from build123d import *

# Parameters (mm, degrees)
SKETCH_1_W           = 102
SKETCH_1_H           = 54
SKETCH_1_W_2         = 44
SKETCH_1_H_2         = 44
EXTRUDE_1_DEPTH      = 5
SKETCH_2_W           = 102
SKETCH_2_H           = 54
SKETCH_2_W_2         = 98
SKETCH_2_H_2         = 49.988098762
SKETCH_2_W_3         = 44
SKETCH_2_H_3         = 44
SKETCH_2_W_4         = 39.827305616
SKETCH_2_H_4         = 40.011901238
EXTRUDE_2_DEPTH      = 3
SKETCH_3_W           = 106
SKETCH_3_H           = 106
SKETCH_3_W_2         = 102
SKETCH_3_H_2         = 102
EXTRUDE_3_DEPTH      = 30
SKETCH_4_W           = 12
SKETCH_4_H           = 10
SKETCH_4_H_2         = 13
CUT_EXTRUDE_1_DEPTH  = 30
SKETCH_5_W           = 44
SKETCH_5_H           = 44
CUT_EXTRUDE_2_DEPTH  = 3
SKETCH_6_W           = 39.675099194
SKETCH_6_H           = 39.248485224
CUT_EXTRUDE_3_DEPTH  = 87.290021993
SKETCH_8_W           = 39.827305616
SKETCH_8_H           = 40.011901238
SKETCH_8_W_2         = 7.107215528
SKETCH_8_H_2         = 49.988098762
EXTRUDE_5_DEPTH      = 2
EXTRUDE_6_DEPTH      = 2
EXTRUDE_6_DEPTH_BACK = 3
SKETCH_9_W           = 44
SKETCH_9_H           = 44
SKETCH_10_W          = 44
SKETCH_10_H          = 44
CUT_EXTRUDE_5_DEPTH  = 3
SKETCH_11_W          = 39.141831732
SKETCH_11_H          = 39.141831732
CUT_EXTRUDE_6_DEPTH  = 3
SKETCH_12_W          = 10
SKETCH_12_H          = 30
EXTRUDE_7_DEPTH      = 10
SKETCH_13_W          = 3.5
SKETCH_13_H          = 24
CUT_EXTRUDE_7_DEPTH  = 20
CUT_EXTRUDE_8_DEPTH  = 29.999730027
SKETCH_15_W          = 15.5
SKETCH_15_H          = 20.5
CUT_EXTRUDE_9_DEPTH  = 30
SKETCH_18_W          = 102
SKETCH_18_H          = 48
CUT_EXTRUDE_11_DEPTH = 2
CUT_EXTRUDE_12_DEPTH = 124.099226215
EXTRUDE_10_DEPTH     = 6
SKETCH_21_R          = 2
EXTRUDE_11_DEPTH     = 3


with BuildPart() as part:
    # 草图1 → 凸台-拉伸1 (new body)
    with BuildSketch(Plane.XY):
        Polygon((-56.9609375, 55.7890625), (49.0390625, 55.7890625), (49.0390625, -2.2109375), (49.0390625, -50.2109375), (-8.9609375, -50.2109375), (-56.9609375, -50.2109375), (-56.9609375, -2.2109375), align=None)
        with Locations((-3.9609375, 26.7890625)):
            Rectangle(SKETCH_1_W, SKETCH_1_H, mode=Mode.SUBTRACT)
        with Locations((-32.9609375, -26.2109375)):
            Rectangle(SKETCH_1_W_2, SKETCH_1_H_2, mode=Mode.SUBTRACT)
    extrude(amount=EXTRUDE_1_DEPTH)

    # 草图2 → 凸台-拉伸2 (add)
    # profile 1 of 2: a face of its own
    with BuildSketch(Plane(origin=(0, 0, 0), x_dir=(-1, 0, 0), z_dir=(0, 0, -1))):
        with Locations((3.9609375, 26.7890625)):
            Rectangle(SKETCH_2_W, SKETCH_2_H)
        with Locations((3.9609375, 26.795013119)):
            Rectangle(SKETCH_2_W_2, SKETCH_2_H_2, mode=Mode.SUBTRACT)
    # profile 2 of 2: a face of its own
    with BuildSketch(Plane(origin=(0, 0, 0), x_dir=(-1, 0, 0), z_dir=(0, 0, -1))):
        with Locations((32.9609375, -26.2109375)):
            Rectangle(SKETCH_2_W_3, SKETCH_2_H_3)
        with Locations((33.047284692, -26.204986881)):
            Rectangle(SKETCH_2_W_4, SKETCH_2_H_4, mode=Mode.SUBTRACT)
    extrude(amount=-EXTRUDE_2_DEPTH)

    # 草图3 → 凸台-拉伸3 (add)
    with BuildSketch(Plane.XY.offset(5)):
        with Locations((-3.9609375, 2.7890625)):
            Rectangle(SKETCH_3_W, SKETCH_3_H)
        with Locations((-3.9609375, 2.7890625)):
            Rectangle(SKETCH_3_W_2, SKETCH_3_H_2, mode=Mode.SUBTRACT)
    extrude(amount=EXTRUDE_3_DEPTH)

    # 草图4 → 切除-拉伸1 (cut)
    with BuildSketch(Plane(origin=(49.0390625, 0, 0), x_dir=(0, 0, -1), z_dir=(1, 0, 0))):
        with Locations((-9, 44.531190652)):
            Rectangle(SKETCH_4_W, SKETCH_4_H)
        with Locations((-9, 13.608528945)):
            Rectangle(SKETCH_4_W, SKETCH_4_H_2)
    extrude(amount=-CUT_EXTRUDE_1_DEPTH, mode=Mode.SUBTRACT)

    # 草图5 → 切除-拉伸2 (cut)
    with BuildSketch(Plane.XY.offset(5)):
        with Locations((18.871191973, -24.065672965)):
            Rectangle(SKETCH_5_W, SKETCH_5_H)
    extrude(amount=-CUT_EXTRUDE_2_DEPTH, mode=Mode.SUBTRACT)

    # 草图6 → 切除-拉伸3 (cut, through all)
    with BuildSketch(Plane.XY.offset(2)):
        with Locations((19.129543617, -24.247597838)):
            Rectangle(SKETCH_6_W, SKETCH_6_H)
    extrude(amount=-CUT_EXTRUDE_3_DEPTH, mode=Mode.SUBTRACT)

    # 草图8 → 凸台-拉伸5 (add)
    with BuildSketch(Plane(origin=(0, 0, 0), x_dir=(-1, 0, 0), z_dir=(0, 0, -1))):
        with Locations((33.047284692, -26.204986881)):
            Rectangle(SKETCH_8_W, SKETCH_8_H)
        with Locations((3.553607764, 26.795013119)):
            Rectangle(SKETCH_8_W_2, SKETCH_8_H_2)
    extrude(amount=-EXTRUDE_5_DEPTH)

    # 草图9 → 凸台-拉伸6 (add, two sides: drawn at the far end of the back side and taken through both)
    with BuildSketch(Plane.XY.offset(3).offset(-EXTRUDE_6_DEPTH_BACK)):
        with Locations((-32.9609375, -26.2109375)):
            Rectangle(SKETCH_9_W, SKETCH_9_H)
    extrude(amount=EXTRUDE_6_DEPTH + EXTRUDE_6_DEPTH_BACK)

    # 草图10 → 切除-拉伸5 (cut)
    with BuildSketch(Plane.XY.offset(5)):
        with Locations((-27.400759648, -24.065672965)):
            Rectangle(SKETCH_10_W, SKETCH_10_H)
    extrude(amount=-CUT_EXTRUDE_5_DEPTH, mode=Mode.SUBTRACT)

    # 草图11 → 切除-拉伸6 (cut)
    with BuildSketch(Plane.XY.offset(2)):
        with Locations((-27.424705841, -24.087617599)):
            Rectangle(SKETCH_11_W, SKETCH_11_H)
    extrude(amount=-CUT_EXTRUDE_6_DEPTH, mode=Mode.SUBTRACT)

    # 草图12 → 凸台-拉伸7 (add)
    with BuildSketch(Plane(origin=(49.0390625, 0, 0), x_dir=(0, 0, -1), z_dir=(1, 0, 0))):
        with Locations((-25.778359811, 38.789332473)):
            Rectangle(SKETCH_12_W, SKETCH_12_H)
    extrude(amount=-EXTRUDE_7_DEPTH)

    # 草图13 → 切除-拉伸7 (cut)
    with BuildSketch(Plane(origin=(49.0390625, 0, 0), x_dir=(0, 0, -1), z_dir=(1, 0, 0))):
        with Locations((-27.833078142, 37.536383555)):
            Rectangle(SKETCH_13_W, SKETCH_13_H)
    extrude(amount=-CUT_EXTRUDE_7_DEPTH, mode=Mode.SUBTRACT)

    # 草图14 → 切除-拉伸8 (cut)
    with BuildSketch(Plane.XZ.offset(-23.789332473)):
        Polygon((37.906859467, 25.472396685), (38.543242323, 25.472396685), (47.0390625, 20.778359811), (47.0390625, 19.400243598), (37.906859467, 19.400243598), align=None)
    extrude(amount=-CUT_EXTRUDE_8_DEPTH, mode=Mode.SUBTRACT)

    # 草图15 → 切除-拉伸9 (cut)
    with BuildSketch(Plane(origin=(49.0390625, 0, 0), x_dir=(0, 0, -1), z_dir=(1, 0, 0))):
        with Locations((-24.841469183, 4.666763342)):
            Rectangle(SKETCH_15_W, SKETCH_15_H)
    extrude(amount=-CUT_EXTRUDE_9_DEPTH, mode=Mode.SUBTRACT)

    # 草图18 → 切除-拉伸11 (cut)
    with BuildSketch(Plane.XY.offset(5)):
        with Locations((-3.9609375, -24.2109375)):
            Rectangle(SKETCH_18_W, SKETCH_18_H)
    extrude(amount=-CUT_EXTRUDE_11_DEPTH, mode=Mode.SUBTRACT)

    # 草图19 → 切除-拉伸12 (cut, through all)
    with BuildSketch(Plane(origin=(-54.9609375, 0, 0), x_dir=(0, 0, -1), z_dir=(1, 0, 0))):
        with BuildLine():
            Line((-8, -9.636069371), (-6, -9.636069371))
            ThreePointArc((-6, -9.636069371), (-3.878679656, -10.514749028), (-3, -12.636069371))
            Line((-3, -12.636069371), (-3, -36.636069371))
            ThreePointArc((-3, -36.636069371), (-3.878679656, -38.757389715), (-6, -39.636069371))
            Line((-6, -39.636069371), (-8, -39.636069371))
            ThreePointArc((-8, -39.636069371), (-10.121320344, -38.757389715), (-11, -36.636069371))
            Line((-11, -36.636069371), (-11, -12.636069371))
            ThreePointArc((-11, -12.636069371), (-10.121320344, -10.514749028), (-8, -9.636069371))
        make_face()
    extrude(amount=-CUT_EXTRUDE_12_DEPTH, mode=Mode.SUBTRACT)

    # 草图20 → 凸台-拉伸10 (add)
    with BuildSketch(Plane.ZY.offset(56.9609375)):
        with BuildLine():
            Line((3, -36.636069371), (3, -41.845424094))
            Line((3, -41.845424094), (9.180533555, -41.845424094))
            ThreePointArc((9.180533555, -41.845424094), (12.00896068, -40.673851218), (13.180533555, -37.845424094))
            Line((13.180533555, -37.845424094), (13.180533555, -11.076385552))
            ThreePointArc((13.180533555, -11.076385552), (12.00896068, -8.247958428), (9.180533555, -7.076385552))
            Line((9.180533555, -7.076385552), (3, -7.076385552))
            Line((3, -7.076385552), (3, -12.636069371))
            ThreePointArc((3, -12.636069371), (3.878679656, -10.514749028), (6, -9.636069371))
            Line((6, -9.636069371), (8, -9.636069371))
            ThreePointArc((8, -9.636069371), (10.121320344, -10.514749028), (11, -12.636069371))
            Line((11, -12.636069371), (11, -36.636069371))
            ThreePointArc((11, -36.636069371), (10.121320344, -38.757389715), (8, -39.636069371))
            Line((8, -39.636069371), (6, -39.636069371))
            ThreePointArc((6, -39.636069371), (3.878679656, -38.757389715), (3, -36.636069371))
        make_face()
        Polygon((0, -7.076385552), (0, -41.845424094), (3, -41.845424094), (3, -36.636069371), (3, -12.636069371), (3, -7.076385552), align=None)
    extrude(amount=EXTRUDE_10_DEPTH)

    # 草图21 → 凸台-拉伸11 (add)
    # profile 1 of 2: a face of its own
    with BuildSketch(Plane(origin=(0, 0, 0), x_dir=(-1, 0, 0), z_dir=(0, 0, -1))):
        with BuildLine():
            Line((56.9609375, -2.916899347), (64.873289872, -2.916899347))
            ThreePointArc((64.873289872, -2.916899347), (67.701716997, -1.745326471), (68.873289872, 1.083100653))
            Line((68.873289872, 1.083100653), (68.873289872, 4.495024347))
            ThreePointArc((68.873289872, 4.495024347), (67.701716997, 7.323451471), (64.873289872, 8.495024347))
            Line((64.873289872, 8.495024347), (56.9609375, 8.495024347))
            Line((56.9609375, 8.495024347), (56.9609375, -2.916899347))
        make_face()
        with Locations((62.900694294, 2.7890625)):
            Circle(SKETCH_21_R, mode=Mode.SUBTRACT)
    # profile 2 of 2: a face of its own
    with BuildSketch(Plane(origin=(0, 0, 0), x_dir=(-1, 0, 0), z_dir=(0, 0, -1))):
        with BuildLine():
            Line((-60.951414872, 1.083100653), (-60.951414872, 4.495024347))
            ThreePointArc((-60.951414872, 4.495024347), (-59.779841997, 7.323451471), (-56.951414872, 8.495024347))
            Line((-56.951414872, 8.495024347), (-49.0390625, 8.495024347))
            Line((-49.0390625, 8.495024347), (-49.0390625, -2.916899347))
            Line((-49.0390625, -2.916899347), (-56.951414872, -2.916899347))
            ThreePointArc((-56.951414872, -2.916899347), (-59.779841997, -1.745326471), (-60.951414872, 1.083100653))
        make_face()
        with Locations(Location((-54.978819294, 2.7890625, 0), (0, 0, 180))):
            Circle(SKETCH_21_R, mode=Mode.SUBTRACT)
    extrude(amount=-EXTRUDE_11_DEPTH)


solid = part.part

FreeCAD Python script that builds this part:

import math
import FreeCAD as App
import Part
import Sketcher
from FreeCAD import Vector
Q = App.Units.Quantity

doc = App.newDocument("Part")
body = doc.addObject("PartDesign::Body", "Body")

# Sketch on XY plane
sketch1 = body.newObject("Sketcher::SketchObject", "Sketch")
sketch1.AttachmentSupport = (doc.getObject("XY_Plane"), [""])
sketch1.MapMode = "FlatFace"
sketch1.addGeometry(Part.LineSegment(Vector(49, 56, 0), Vector(-57, 56, 0)), False)
sketch1.addGeometry(Part.LineSegment(Vector(-57, 56, 0), Vector(-57, -50, 0)), False)
sketch1.addGeometry(Part.LineSegment(Vector(-57, -50, 0), Vector(49, -50, 0)), False)
sketch1.addGeometry(Part.LineSegment(Vector(49, -50, 0), Vector(49, 56, 0)), False)
sketch1.addGeometry(Part.LineSegment(Vector(-55, -48, 0), Vector(-55, -4, 0)), False)
sketch1.addGeometry(Part.LineSegment(Vector(-55, -4, 0), Vector(-11, -4, 0)), False)
sketch1.addGeometry(Part.LineSegment(Vector(-11, -4, 0), Vector(-11, -48, 0)), False)
sketch1.addGeometry(Part.LineSegment(Vector(-11, -48, 0), Vector(-55, -48, 0)), False)
sketch1.addGeometry(Part.LineSegment(Vector(-55, 0, 0), Vector(-55, 54, 0)), False)
sketch1.addGeometry(Part.LineSegment(Vector(-55, 54, 0), Vector(47, 54, 0)), False)
sketch1.addGeometry(Part.LineSegment(Vector(47, 54, 0), Vector(47, 0, 0)), False)
sketch1.addGeometry(Part.LineSegment(Vector(47, 0, 0), Vector(-55, 0, 0)), False)
sketch1.addConstraint(Sketcher.Constraint("Coincident", 0, 2, 1, 1))
sketch1.addConstraint(Sketcher.Constraint("Coincident", 1, 2, 2, 1))
sketch1.addConstraint(Sketcher.Constraint("Coincident", 2, 2, 3, 1))
sketch1.addConstraint(Sketcher.Constraint("Coincident", 3, 2, 0, 1))
sketch1.addConstraint(Sketcher.Constraint("Coincident", 4, 2, 5, 1))
sketch1.addConstraint(Sketcher.Constraint("Coincident", 5, 2, 6, 1))
sketch1.addConstraint(Sketcher.Constraint("Coincident", 6, 2, 7, 1))
sketch1.addConstraint(Sketcher.Constraint("Coincident", 7, 2, 4, 1))
sketch1.addConstraint(Sketcher.Constraint("Coincident", 8, 2, 9, 1))
sketch1.addConstraint(Sketcher.Constraint("Coincident", 9, 2, 10, 1))
sketch1.addConstraint(Sketcher.Constraint("Coincident", 10, 2, 11, 1))
sketch1.addConstraint(Sketcher.Constraint("Coincident", 11, 2, 8, 1))
sketch1.addConstraint(Sketcher.Constraint("Horizontal", 0))
sketch1.addConstraint(Sketcher.Constraint("Vertical", 1))
sketch1.addConstraint(Sketcher.Constraint("Horizontal", 2))
sketch1.addConstraint(Sketcher.Constraint("Vertical", 3))
sketch1.addConstraint(Sketcher.Constraint("Vertical", 4))
sketch1.addConstraint(Sketcher.Constraint("Horizontal", 5))
sketch1.addConstraint(Sketcher.Constraint("Vertical", 6))
sketch1.addConstraint(Sketcher.Constraint("Horizontal", 7))
sketch1.addConstraint(Sketcher.Constraint("Vertical", 8))
sketch1.addConstraint(Sketcher.Constraint("Horizontal", 9))
sketch1.addConstraint(Sketcher.Constraint("Vertical", 10))
sketch1.addConstraint(Sketcher.Constraint("Horizontal", 11))
sketch1.addConstraint(Sketcher.Constraint("Vertical", 7, 2, 8, 2))
sketch1.addConstraint(Sketcher.Constraint("Equal", 2, 1))
sketch1.addConstraint(Sketcher.Constraint("Equal", 7, 4))
sketch1.addConstraint(Sketcher.Constraint("DistanceX", 0, 2, 0, 1, Q("106 mm")))
sketch1.addConstraint(Sketcher.Constraint("DistanceX", 5, 1, 5, 2, Q("44 mm")))
sketch1.addConstraint(Sketcher.Constraint("DistanceX", 9, 1, 9, 2, Q("102 mm")))
sketch1.addConstraint(Sketcher.Constraint("DistanceY", 8, 1, 8, 2, Q("54 mm")))
sketch1.addConstraint(Sketcher.Constraint("DistanceX", 1, 2, 4, 2, Q("2 mm")))
sketch1.addConstraint(Sketcher.Constraint("DistanceY", 1, 2, 4, 2, Q("46 mm")))
sketch1.addConstraint(Sketcher.Constraint("DistanceY", 8, 2, 0, 2, Q("2 mm")))
sketch1.addConstraint(Sketcher.Constraint("DistanceX", 0, 2, -1, 1, Q("56.960938 mm")))
sketch1.addConstraint(Sketcher.Constraint("DistanceY", -1, 1, 0, 2, Q("55.789062 mm")))
pad1 = body.newObject("PartDesign::Pad", "Pad")
pad1.Profile = sketch1
pad1.Length = 5

# Sketch on XY plane
sketch2 = body.newObject("Sketcher::SketchObject", "Sketch001")
sketch2.AttachmentSupport = (doc.getObject("XY_Plane"), [""])
sketch2.MapMode = "FlatFace"
sketch2.addGeometry(Part.LineSegment(Vector(47, 54, 0), Vector(47, 0, 0)), False)
sketch2.addGeometry(Part.LineSegment(Vector(47, 0, 0), Vector(-55, 0, 0)), False)
sketch2.addGeometry(Part.LineSegment(Vector(-55, 0, 0), Vector(-55, 54, 0)), False)
sketch2.addGeometry(Part.LineSegment(Vector(-55, 54, 0), Vector(47, 54, 0)), False)
sketch2.addGeometry(Part.LineSegment(Vector(-53, 2, 0), Vector(45, 2, 0)), False)
sketch2.addGeometry(Part.LineSegment(Vector(45, 2, 0), Vector(45, 52, 0)), False)
sketch2.addGeometry(Part.LineSegment(Vector(45, 52, 0), Vector(-53, 52, 0)), False)
sketch2.addGeometry(Part.LineSegment(Vector(-53, 52, 0), Vector(-53, 2, 0)), False)
sketch2.addGeometry(Part.LineSegment(Vector(-11, -4, 0), Vector(-11, -48, 0)), False)
sketch2.addGeometry(Part.LineSegment(Vector(-11, -48, 0), Vector(-55, -48, 0)), False)
sketch2.addGeometry(Part.LineSegment(Vector(-55, -48, 0), Vector(-55, -4, 0)), False)
sketch2.addGeometry(Part.LineSegment(Vector(-55, -4, 0), Vector(-11, -4, 0)), False)
sketch2.addGeometry(Part.LineSegment(Vector(-53, -46, 0), Vector(-13, -46, 0)), False)
sketch2.addGeometry(Part.LineSegment(Vector(-13, -46, 0), Vector(-13, -6, 0)), False)
sketch2.addGeometry(Part.LineSegment(Vector(-13, -6, 0), Vector(-53, -6, 0)), False)
sketch2.addGeometry(Part.LineSegment(Vector(-53, -6, 0), Vector(-53, -46, 0)), False)
sketch2.addConstraint(Sketcher.Constraint("Coincident", 0, 2, 1, 1))
sketch2.addConstraint(Sketcher.Constraint("Coincident", 1, 2, 2, 1))
sketch2.addConstraint(Sketcher.Constraint("Coincident", 2, 2, 3, 1))
sketch2.addConstraint(Sketcher.Constraint("Coincident", 3, 2, 0, 1))
sketch2.addConstraint(Sketcher.Constraint("Coincident", 4, 2, 5, 1))
sketch2.addConstraint(Sketcher.Constraint("Coincident", 5, 2, 6, 1))
sketch2.addConstraint(Sketcher.Constraint("Coincident", 6, 2, 7, 1))
sketch2.addConstraint(Sketcher.Constraint("Coincident", 7, 2, 4, 1))
sketch2.addConstraint(Sketcher.Constraint("Coincident", 8, 2, 9, 1))
sketch2.addConstraint(Sketcher.Constraint("Coincident", 9, 2, 10, 1))
sketch2.addConstraint(Sketcher.Constraint("Coincident", 10, 2, 11, 1))
sketch2.addConstraint(Sketcher.Constraint("Coincident", 11, 2, 8, 1))
sketch2.addConstraint(Sketcher.Constraint("Coincident", 12, 2, 13, 1))
sketch2.addConstraint(Sketcher.Constraint("Coincident", 13, 2, 14, 1))
sketch2.addConstraint(Sketcher.Constraint("Coincident", 14, 2, 15, 1))
sketch2.addConstraint(Sketcher.Constraint("Coincident", 15, 2, 12, 1))
sketch2.addConstraint(Sketcher.Constraint("Vertical", 0))
sketch2.addConstraint(Sketcher.Constraint("Horizontal", 1))
sketch2.addConstraint(Sketcher.Constraint("Vertical", 2))
sketch2.addConstraint(Sketcher.Constraint("Horizontal", 3))
sketch2.addConstraint(Sketcher.Constraint("Horizontal", 4))
sketch2.addConstraint(Sketcher.Constraint("Vertical", 5))
sketch2.addConstraint(Sketcher.Constraint("Horizontal", 6))
sketch2.addConstraint(Sketcher.Constraint("Vertical", 7))
sketch2.addConstraint(Sketcher.Constraint("Vertical", 8))
sketch2.addConstraint(Sketcher.Constraint("Horizontal", 9))
sketch2.addConstraint(Sketcher.Constraint("Vertical", 10))
sketch2.addConstraint(Sketcher.Constraint("Horizontal", 11))
sketch2.addConstraint(Sketcher.Constraint("Horizontal", 12))
sketch2.addConstraint(Sketcher.Constraint("Vertical", 13))
sketch2.addConstraint(Sketcher.Constraint("Horizontal", 14))
sketch2.addConstraint(Sketcher.Constraint("Vertical", 15))
sketch2.addConstraint(Sketcher.Constraint("Vertical", 2, 2, 9, 2))
sketch2.addConstraint(Sketcher.Constraint("Vertical", 7, 2, 14, 2))
sketch2.addConstraint(Sketcher.Constraint("Equal", 11, 8))
sketch2.addConstraint(Sketcher.Constraint("DistanceX", 1, 2, 1, 1, Q("102 mm")))
sketch2.addConstraint(Sketcher.Constraint("DistanceX", 4, 1, 4, 2, Q("98 mm")))
sketch2.addConstraint(Sketcher.Constraint("DistanceX", 9, 2, 9, 1, Q("44 mm")))
sketch2.addConstraint(Sketcher.Constraint("DistanceY", 0, 2, 0, 1, Q("54 mm")))
sketch2.addConstraint(Sketcher.Constraint("DistanceX", 4, 2, 0, 2, Q("2 mm")))
sketch2.addConstraint(Sketcher.Constraint("DistanceY", 5, 2, 3, 2, Q("2 mm")))
sketch2.addConstraint(Sketcher.Constraint("DistanceY", 8, 2, 1, 2, Q("48 mm")))
sketch2.addConstraint(Sketcher.Constraint("DistanceY", 8, 2, 12, 2, Q("2 mm")))
sketch2.addConstraint(Sketcher.Constraint("DistanceY", 13, 2, 7, 2, Q("8 mm")))
sketch2.addConstraint(Sketcher.Constraint("DistanceY", 5, 1, 5, 2, Q("49.988099 mm")))
sketch2.addConstraint(Sketcher.Constraint("DistanceX", 12, 1, 12, 2, Q("39.827306 mm")))
sketch2.addConstraint(Sketcher.Constraint("DistanceX", 12, 2, -1, 1, Q("13.133632 mm")))
sketch2.addConstraint(Sketcher.Constraint("DistanceY", 0, 2, -1, 1, Q("0.210938 mm")))
pad2 = body.newObject("PartDesign::Pad", "Pad001")
pad2.Profile = sketch2
pad2.Length = 3

# Sketch on XY plane
sketch3 = body.newObject("Sketcher::SketchObject", "Sketch002")
sketch3.AttachmentSupport = (doc.getObject("XY_Plane"), [""])
sketch3.MapMode = "FlatFace"
sketch3.AttachmentOffset = App.Placement(Vector(0, 0, 5), App.Rotation())
sketch3.addGeometry(Part.LineSegment(Vector(-57, 56, 0), Vector(-57, -50, 0)), False)
sketch3.addGeometry(Part.LineSegment(Vector(-57, -50, 0), Vector(49, -50, 0)), False)
sketch3.addGeometry(Part.LineSegment(Vector(49, -50, 0), Vector(49, 56, 0)), False)
sketch3.addGeometry(Part.LineSegment(Vector(49, 56, 0), Vector(-57, 56, 0)), False)
sketch3.addGeometry(Part.LineSegment(Vector(47, -48, 0), Vector(-55, -48, 0)), False)
sketch3.addGeometry(Part.LineSegment(Vector(-55, -48, 0), Vector(-55, 54, 0)), False)
sketch3.addGeometry(Part.LineSegment(Vector(-55, 54, 0), Vector(47, 54, 0)), False)
sketch3.addGeometry(Part.LineSegment(Vector(47, 54, 0), Vector(47, -48, 0)), False)
sketch3.addConstraint(Sketcher.Constraint("Coincident", 0, 2, 1, 1))
sketch3.addConstraint(Sketcher.Constraint("Coincident", 1, 2, 2, 1))
sketch3.addConstraint(Sketcher.Constraint("Coincident", 2, 2, 3, 1))
sketch3.addConstraint(Sketcher.Constraint("Coincident", 3, 2, 0, 1))
sketch3.addConstraint(Sketcher.Constraint("Coincident", 4, 2, 5, 1))
sketch3.addConstraint(Sketcher.Constraint("Coincident", 5, 2, 6, 1))
sketch3.addConstraint(Sketcher.Constraint("Coincident", 6, 2, 7, 1))
sketch3.addConstraint(Sketcher.Constraint("Coincident", 7, 2, 4, 1))
sketch3.addConstraint(Sketcher.Constraint("Vertical", 0))
sketch3.addConstraint(Sketcher.Constraint("Horizontal", 1))
sketch3.addConstraint(Sketcher.Constraint("Vertical", 2))
sketch3.addConstraint(Sketcher.Constraint("Horizontal", 3))
sketch3.addConstraint(Sketcher.Constraint("Horizontal", 4))
sketch3.addConstraint(Sketcher.Constraint("Vertical", 5))
sketch3.addConstraint(Sketcher.Constraint("Horizontal", 6))
sketch3.addConstraint(Sketcher.Constraint("Vertical", 7))
sketch3.addConstraint(Sketcher.Constraint("Equal", 3, 0))
sketch3.addConstraint(Sketcher.Constraint("Equal", 6, 5))
sketch3.addConstraint(Sketcher.Constraint("DistanceX", 1, 1, 1, 2, Q("106 mm")))
sketch3.addConstraint(Sketcher.Constraint("DistanceX", 4, 2, 4, 1, Q("102 mm")))
sketch3.addConstraint(Sketcher.Constraint("DistanceX", 0, 2, 4, 2, Q("2 mm")))
sketch3.addConstraint(Sketcher.Constraint("DistanceY", 0, 2, 4, 2, Q("2 mm")))
sketch3.addConstraint(Sketcher.Constraint("DistanceX", 0, 2, -1, 1, Q("56.960938 mm")))
sketch3.addConstraint(Sketcher.Constraint("DistanceY", 0, 2, -1, 1, Q("50.210938 mm")))
pad3 = body.newObject("PartDesign::Pad", "Pad002")
pad3.Profile = sketch3
pad3.Length = 30

# Sketch on YZ plane
sketch4 = body.newObject("Sketcher::SketchObject", "Sketch003")
sketch4.AttachmentSupport = (doc.getObject("YZ_Plane"), [""])
sketch4.MapMode = "FlatFace"
sketch4.AttachmentOffset = App.Placement(Vector(0, 0, 49.039062), App.Rotation())
sketch4.addGeometry(Part.LineSegment(Vector(50, 15, 0), Vector(40, 15, 0)), False)
sketch4.addGeometry(Part.LineSegment(Vector(40, 15, 0), Vector(40, 3, 0)), False)
sketch4.addGeometry(Part.LineSegment(Vector(40, 3, 0), Vector(50, 3, 0)), False)
sketch4.addGeometry(Part.LineSegment(Vector(50, 3, 0), Vector(50, 15, 0)), False)
sketch4.addGeometry(Part.LineSegment(Vector(20, 15, 0), Vector(7, 15, 0)), False)
sketch4.addGeometry(Part.LineSegment(Vector(7, 15, 0), Vector(7, 3, 0)), False)
sketch4.addGeometry(Part.LineSegment(Vector(7, 3, 0), Vector(20, 3, 0)), False)
sketch4.addGeometry(Part.LineSegment(Vector(20, 3, 0), Vector(20, 15, 0)), False)
sketch4.addConstraint(Sketcher.Constraint("Coincident", 0, 2, 1, 1))
sketch4.addConstraint(Sketcher.Constraint("Coincident", 1, 2, 2, 1))
sketch4.addConstraint(Sketcher.Constraint("Coincident", 2, 2, 3, 1))
sketch4.addConstraint(Sketcher.Constraint("Coincident", 3, 2, 0, 1))
sketch4.addConstraint(Sketcher.Constraint("Coincident", 4, 2, 5, 1))
sketch4.addConstraint(Sketcher.Constraint("Coincident", 5, 2, 6, 1))
sketch4.addConstraint(Sketcher.Constraint("Coincident", 6, 2, 7, 1))
sketch4.addConstraint(Sketcher.Constraint("Coincident", 7, 2, 4, 1))
sketch4.addConstraint(Sketcher.Constraint("Horizontal", 0))
sketch4.addConstraint(Sketcher.Constraint("Vertical", 1))
sketch4.addConstraint(Sketcher.Constraint("Horizontal", 2))
sketch4.addConstraint(Sketcher.Constraint("Vertical", 3))
sketch4.addConstraint(Sketcher.Constraint("Horizontal", 4))
sketch4.addConstraint(Sketcher.Constraint("Vertical", 5))
sketch4.addConstraint(Sketcher.Constraint("Horizontal", 6))
sketch4.addConstraint(Sketcher.Constraint("Vertical", 7))
sketch4.addConstraint(Sketcher.Constraint("Horizontal", 3, 2, 4, 2))
sketch4.addConstraint(Sketcher.Constraint("Horizontal", 2, 2, 5, 2))
sketch4.addConstraint(Sketcher.Constraint("DistanceX", 0, 2, 0, 1, Q("10 mm")))
sketch4.addConstraint(Sketcher.Constraint("DistanceX", 4, 2, 4, 1, Q("13 mm")))
sketch4.addConstraint(Sketcher.Constraint("DistanceY", 1, 2, 1, 1, Q("12 mm")))
sketch4.addConstraint(Sketcher.Constraint("DistanceY", -1, 1, 0, 2, Q("15 mm")))
sketch4.addConstraint(Sketcher.Constraint("DistanceX", -1, 1, 0, 2, Q("39.531191 mm")))
sketch4.addConstraint(Sketcher.Constraint("DistanceX", -1, 1, 4, 2, Q("7.108529 mm")))
pocket1 = body.newObject("PartDesign::Pocket", "Pocket")
pocket1.Profile = sketch4
pocket1.Length = 30

# Sketch on XY plane
sketch5 = body.newObject("Sketcher::SketchObject", "Sketch004")
sketch5.AttachmentSupport = (doc.getObject("XY_Plane"), [""])
sketch5.MapMode = "FlatFace"
sketch5.AttachmentOffset = App.Placement(Vector(0, 0, 5), App.Rotation())
sketch5.addGeometry(Part.LineSegment(Vector(-3, -2, 0), Vector(-3, -46, 0)), False)
sketch5.addGeometry(Part.LineSegment(Vector(-3, -46, 0), Vector(41, -46, 0)), False)
sketch5.addGeometry(Part.LineSegment(Vector(41, -46, 0), Vector(41, -2, 0)), False)
sketch5.addGeometry(Part.LineSegment(Vector(41, -2, 0), Vector(-3, -2, 0)), False)
sketch5.addConstraint(Sketcher.Constraint("Coincident", 0, 2, 1, 1))
sketch5.addConstraint(Sketcher.Constraint("Coincident", 1, 2, 2, 1))
sketch5.addConstraint(Sketcher.Constraint("Coincident", 2, 2, 3, 1))
sketch5.addConstraint(Sketcher.Constraint("Coincident", 3, 2, 0, 1))
sketch5.addConstraint(Sketcher.Constraint("Vertical", 0))
sketch5.addConstraint(Sketcher.Constraint("Horizontal", 1))
sketch5.addConstraint(Sketcher.Constraint("Vertical", 2))
sketch5.addConstraint(Sketcher.Constraint("Horizontal", 3))
sketch5.addConstraint(Sketcher.Constraint("Equal", 3, 0))
sketch5.addConstraint(Sketcher.Constraint("DistanceX", 1, 1, 1, 2, Q("44 mm")))
sketch5.addConstraint(Sketcher.Constraint("DistanceX", 0, 2, -1, 1, Q("3.128808 mm")))
sketch5.addConstraint(Sketcher.Constraint("DistanceY", 0, 2, -1, 1, Q("46.065673 mm")))
pocket2 = body.newObject("PartDesign::Pocket", "Pocket001")
pocket2.Profile = sketch5
pocket2.Length = 3

# Sketch on XY plane
sketch6 = body.newObject("Sketcher::SketchObject", "Sketch005")
sketch6.AttachmentSupport = (doc.getObject("XY_Plane"), [""])
sketch6.MapMode = "FlatFace"
sketch6.AttachmentOffset = App.Placement(Vector(0, 0, 2), App.Rotation())
sketch6.addGeometry(Part.LineSegment(Vector(-1, -5, 0), Vector(-1, -44, 0)), False)
sketch6.addGeometry(Part.LineSegment(Vector(-1, -44, 0), Vector(39, -44, 0)), False)
sketch6.addGeometry(Part.LineSegment(Vector(39, -44, 0), Vector(39, -5, 0)), False)
sketch6.addGeometry(Part.LineSegment(Vector(39, -5, 0), Vector(-1, -5, 0)), False)
sketch6.addConstraint(Sketcher.Constraint("Coincident", 0, 2, 1, 1))
sketch6.addConstraint(Sketcher.Constraint("Coincident", 1, 2, 2, 1))
sketch6.addConstraint(Sketcher.Constraint("Coincident", 2, 2, 3, 1))
sketch6.addConstraint(Sketcher.Constraint("Coincident", 3, 2, 0, 1))
sketch6.addConstraint(Sketcher.Constraint("Vertical", 0))
sketch6.addConstraint(Sketcher.Constraint("Horizontal", 1))
sketch6.addConstraint(Sketcher.Constraint("Vertical", 2))
sketch6.addConstraint(Sketcher.Constraint("Horizontal", 3))
sketch6.addConstraint(Sketcher.Constraint("DistanceX", 1, 1, 1, 2, Q("39.675099 mm")))
sketch6.addConstraint(Sketcher.Constraint("DistanceY", 0, 2, 0, 1, Q("39.248485 mm")))
sketch6.addConstraint(Sketcher.Constraint("DistanceY", 0, 2, -1, 1, Q("43.87184 mm")))
sketch6.addConstraint(Sketcher.Constraint("DistanceX", 0, 2, -1, 1, Q("0.708006 mm")))
pocket3 = body.newObject("PartDesign::Pocket", "Pocket002")
pocket3.Profile = sketch6
pocket3.Type = "ThroughAll"

# Sketch on XY plane
sketch7 = body.newObject("Sketcher::SketchObject", "Sketch006")
sketch7.AttachmentSupport = (doc.getObject("XY_Plane"), [""])
sketch7.MapMode = "FlatFace"
sketch7.addGeometry(Part.LineSegment(Vector(-13, -6, 0), Vector(-13, -46, 0)), False)
sketch7.addGeometry(Part.LineSegment(Vector(-13, -46, 0), Vector(-53, -46, 0)), False)
sketch7.addGeometry(Part.LineSegment(Vector(-53, -46, 0), Vector(-53, -6, 0)), False)
sketch7.addGeometry(Part.LineSegment(Vector(-53, -6, 0), Vector(-13, -6, 0)), False)
sketch7.addGeometry(Part.LineSegment(Vector(0, 52, 0), Vector(0, 2, 0)), False)
sketch7.addGeometry(Part.LineSegment(Vector(0, 2, 0), Vector(-7, 2, 0)), False)
sketch7.addGeometry(Part.LineSegment(Vector(-7, 2, 0), Vector(-7, 52, 0)), False)
sketch7.addGeometry(Part.LineSegment(Vector(-7, 52, 0), Vector(0, 52, 0)), False)
sketch7.addConstraint(Sketcher.Constraint("Coincident", 0, 2, 1, 1))
sketch7.addConstraint(Sketcher.Constraint("Coincident", 1, 2, 2, 1))
sketch7.addConstraint(Sketcher.Constraint("Coincident", 2, 2, 3, 1))
sketch7.addConstraint(Sketcher.Constraint("Coincident", 3, 2, 0, 1))
sketch7.addConstraint(Sketcher.Constraint("Coincident", 4, 2, 5, 1))
sketch7.addConstraint(Sketcher.Constraint("Coincident", 5, 2, 6, 1))
sketch7.addConstraint(Sketcher.Constraint("Coincident", 6, 2, 7, 1))
sketch7.addConstraint(Sketcher.Constraint("Coincident", 7, 2, 4, 1))
sketch7.addConstraint(Sketcher.Constraint("Vertical", 0))
sketch7.addConstraint(Sketcher.Constraint("Horizontal", 1))
sketch7.addConstraint(Sketcher.Constraint("Vertical", 2))
sketch7.addConstraint(Sketcher.Constraint("Horizontal", 3))
sketch7.addConstraint(Sketcher.Constraint("Vertical", 4))
sketch7.addConstraint(Sketcher.Constraint("Horizontal", 5))
sketch7.addConstraint(Sketcher.Constraint("Vertical", 6))
sketch7.addConstraint(Sketcher.Constraint("Horizontal", 7))
sketch7.addConstraint(Sketcher.Constraint("PointOnObject", 4, 2, -2))
sketch7.addConstraint(Sketcher.Constraint("DistanceY", 3, 2, 4, 2, Q("8 mm")))
sketch7.addConstraint(Sketcher.Constraint("DistanceY", 0, 2, 6, 2, Q("98 mm")))
sketch7.addConstraint(Sketcher.Constraint("DistanceY", 0, 2, 0, 1, Q("40.011901 mm")))
sketch7.addConstraint(Sketcher.Constraint("DistanceX", 1, 2, 1, 1, Q("39.827306 mm")))
sketch7.addConstraint(Sketcher.Constraint("DistanceX", 5, 2, 5, 1, Q("7.107216 mm")))
sketch7.addConstraint(Sketcher.Constraint("DistanceX", 0, 2, -1, 1, Q("13.133632 mm")))
sketch7.addConstraint(Sketcher.Constraint("DistanceY", 0, 2, -1, 1, Q("46.210938 mm")))
pad4 = body.newObject("PartDesign::Pad", "Pad003")
pad4.Profile = sketch7
pad4.Length = 2

# Sketch on XY plane
sketch8 = body.newObject("Sketcher::SketchObject", "Sketch007")
sketch8.AttachmentSupport = (doc.getObject("XY_Plane"), [""])
sketch8.MapMode = "FlatFace"
sketch8.AttachmentOffset = App.Placement(Vector(0, 0, 3), App.Rotation())
sketch8.addGeometry(Part.LineSegment(Vector(-55, -4, 0), Vector(-55, -48, 0)), False)
sketch8.addGeometry(Part.LineSegment(Vector(-55, -48, 0), Vector(-11, -48, 0)), False)
sketch8.addGeometry(Part.LineSegment(Vector(-11, -48, 0), Vector(-11, -4, 0)), False)
sketch8.addGeometry(Part.LineSegment(Vector(-11, -4, 0), Vector(-55, -4, 0)), False)
sketch8.addConstraint(Sketcher.Constraint("Coincident", 0, 2, 1, 1))
sketch8.addConstraint(Sketcher.Constraint("Coincident", 1, 2, 2, 1))
sketch8.addConstraint(Sketcher.Constraint("Coincident", 2, 2, 3, 1))
sketch8.addConstraint(Sketcher.Constraint("Coincident", 3, 2, 0, 1))
sketch8.addConstraint(Sketcher.Constraint("Vertical", 0))
sketch8.addConstraint(Sketcher.Constraint("Horizontal", 1))
sketch8.addConstraint(Sketcher.Constraint("Vertical", 2))
sketch8.addConstraint(Sketcher.Constraint("Horizontal", 3))
sketch8.addConstraint(Sketcher.Constraint("Equal", 3, 0))
sketch8.addConstraint(Sketcher.Constraint("DistanceX", 1, 1, 1, 2, Q("44 mm")))
sketch8.addConstraint(Sketcher.Constraint("DistanceX", 0, 2, -1, 1, Q("54.960938 mm")))
sketch8.addConstraint(Sketcher.Constraint("DistanceY", 0, 2, -1, 1, Q("48.210938 mm")))
pad5 = body.newObject("PartDesign::Pad", "Pad004")
pad5.Profile = sketch8
pad5.Type = "TwoLengths"
pad5.Length = 2
pad5.Length2 = 3

# Sketch on XY plane
sketch9 = body.newObject("Sketcher::SketchObject", "Sketch008")
sketch9.AttachmentSupport = (doc.getObject("XY_Plane"), [""])
sketch9.MapMode = "FlatFace"
sketch9.AttachmentOffset = App.Placement(Vector(0, 0, 5), App.Rotation())
sketch9.addGeometry(Part.LineSegment(Vector(-49, -2, 0), Vector(-49, -46, 0)), False)
sketch9.addGeometry(Part.LineSegment(Vector(-49, -46, 0), Vector(-5, -46, 0)), False)
sketch9.addGeometry(Part.LineSegment(Vector(-5, -46, 0), Vector(-5, -2, 0)), False)
sketch9.addGeometry(Part.LineSegment(Vector(-5, -2, 0), Vector(-49, -2, 0)), False)
sketch9.addConstraint(Sketcher.Constraint("Coincident", 0, 2, 1, 1))
sketch9.addConstraint(Sketcher.Constraint("Coincident", 1, 2, 2, 1))
sketch9.addConstraint(Sketcher.Constraint("Coincident", 2, 2, 3, 1))
sketch9.addConstraint(Sketcher.Constraint("Coincident", 3, 2, 0, 1))
sketch9.addConstraint(Sketcher.Constraint("Vertical", 0))
sketch9.addConstraint(Sketcher.Constraint("Horizontal", 1))
sketch9.addConstraint(Sketcher.Constraint("Vertical", 2))
sketch9.addConstraint(Sketcher.Constraint("Horizontal", 3))
sketch9.addConstraint(Sketcher.Constraint("Equal", 3, 0))
sketch9.addConstraint(Sketcher.Constraint("DistanceX", 1, 1, 1, 2, Q("44 mm")))
sketch9.addConstraint(Sketcher.Constraint("DistanceX", 0, 2, -1, 1, Q("49.40076 mm")))
sketch9.addConstraint(Sketcher.Constraint("DistanceY", 0, 2, -1, 1, Q("46.065673 mm")))
pocket4 = body.newObject("PartDesign::Pocket", "Pocket003")
pocket4.Profile = sketch9
pocket4.Length = 3

# Sketch on XY plane
sketch10 = body.newObject("Sketcher::SketchObject", "Sketch009")
sketch10.AttachmentSupport = (doc.getObject("XY_Plane"), [""])
sketch10.MapMode = "FlatFace"
sketch10.AttachmentOffset = App.Placement(Vector(0, 0, 2), App.Rotation())
sketch10.addGeometry(Part.LineSegment(Vector(-47, -5, 0), Vector(-47, -44, 0)), False)
sketch10.addGeometry(Part.LineSegment(Vector(-47, -44, 0), Vector(-8, -44, 0)), False)
sketch10.addGeometry(Part.LineSegment(Vector(-8, -44, 0), Vector(-8, -5, 0)), False)
sketch10.addGeometry(Part.LineSegment(Vector(-8, -5, 0), Vector(-47, -5, 0)), False)
sketch10.addConstraint(Sketcher.Constraint("Coincident", 0, 2, 1, 1))
sketch10.addConstraint(Sketcher.Constraint("Coincident", 1, 2, 2, 1))
sketch10.addConstraint(Sketcher.Constraint("Coincident", 2, 2, 3, 1))
sketch10.addConstraint(Sketcher.Constraint("Coincident", 3, 2, 0, 1))
sketch10.addConstraint(Sketcher.Constraint("Vertical", 0))
sketch10.addConstraint(Sketcher.Constraint("Horizontal", 1))
sketch10.addConstraint(Sketcher.Constraint("Vertical", 2))
sketch10.addConstraint(Sketcher.Constraint("Horizontal", 3))
sketch10.addConstraint(Sketcher.Constraint("Equal", 3, 0))
sketch10.addConstraint(Sketcher.Constraint("DistanceX", 1, 1, 1, 2, Q("39.141832 mm")))
sketch10.addConstraint(Sketcher.Constraint("DistanceY", 2, 2, -1, 1, Q("4.516702 mm")))
sketch10.addConstraint(Sketcher.Constraint("DistanceX", 0, 2, -1, 1, Q("46.995622 mm")))
pocket5 = body.newObject("PartDesign::Pocket", "Pocket004")
pocket5.Profile = sketch10
pocket5.Length = 3

# Sketch on YZ plane
sketch11 = body.newObject("Sketcher::SketchObject", "Sketch010")
sketch11.AttachmentSupport = (doc.getObject("YZ_Plane"), [""])
sketch11.MapMode = "FlatFace"
sketch11.AttachmentOffset = App.Placement(Vector(0, 0, 49.039062), App.Rotation())
sketch11.addGeometry(Part.LineSegment(Vector(54, 31, 0), Vector(24, 31, 0)), False)
sketch11.addGeometry(Part.LineSegment(Vector(24, 31, 0), Vector(24, 21, 0)), False)
sketch11.addGeometry(Part.LineSegment(Vector(24, 21, 0), Vector(54, 21, 0)), False)
sketch11.addGeometry(Part.LineSegment(Vector(54, 21, 0), Vector(54, 31, 0)), False)
sketch11.addConstraint(Sketcher.Constraint("Coincident", 0, 2, 1, 1))
sketch11.addConstraint(Sketcher.Constraint("Coincident", 1, 2, 2, 1))
sketch11.addConstraint(Sketcher.Constraint("Coincident", 2, 2, 3, 1))
sketch11.addConstraint(Sketcher.Constraint("Coincident", 3, 2, 0, 1))
sketch11.addConstraint(Sketcher.Constraint("Horizontal", 0))
sketch11.addConstraint(Sketcher.Constraint("Vertical", 1))
sketch11.addConstraint(Sketcher.Constraint("Horizontal", 2))
sketch11.addConstraint(Sketcher.Constraint("Vertical", 3))
sketch11.addConstraint(Sketcher.Constraint("DistanceX", 0, 2, 0, 1, Q("30 mm")))
sketch11.addConstraint(Sketcher.Constraint("DistanceY", 1, 2, 1, 1, Q("10 mm")))
sketch11.addConstraint(Sketcher.Constraint("DistanceY", -1, 1, 0, 2, Q("30.77836 mm")))
sketch11.addConstraint(Sketcher.Constraint("DistanceX", -1, 1, 0, 2, Q("23.789332 mm")))
pad6 = body.newObject("PartDesign::Pad", "Pad005")
pad6.Profile = sketch11
pad6.Length = 10
pad6.Reversed = True

# Sketch on YZ plane
sketch12 = body.newObject("Sketcher::SketchObject", "Sketch011")
sketch12.AttachmentSupport = (doc.getObject("YZ_Plane"), [""])
sketch12.MapMode = "FlatFace"
sketch12.AttachmentOffset = App.Placement(Vector(0, 0, 49.039062), App.Rotation())
sketch12.addGeometry(Part.LineSegment(Vector(49.5, 29.6, 0), Vector(25.5, 29.6, 0)), False)
sketch12.addGeometry(Part.LineSegment(Vector(25.5, 29.6, 0), Vector(25.5, 26.1, 0)), False)
sketch12.addGeometry(Part.LineSegment(Vector(25.5, 26.1, 0), Vector(49.5, 26.1, 0)), False)
sketch12.addGeometry(Part.LineSegment(Vector(49.5, 26.1, 0), Vector(49.5, 29.6, 0)), False)
sketch12.addConstraint(Sketcher.Constraint("Coincident", 0, 2, 1, 1))
sketch12.addConstraint(Sketcher.Constraint("Coincident", 1, 2, 2, 1))
sketch12.addConstraint(Sketcher.Constraint("Coincident", 2, 2, 3, 1))
sketch12.addConstraint(Sketcher.Constraint("Coincident", 3, 2, 0, 1))
sketch12.addConstraint(Sketcher.Constraint("Horizontal", 0))
sketch12.addConstraint(Sketcher.Constraint("Vertical", 1))
sketch12.addConstraint(Sketcher.Constraint("Horizontal", 2))
sketch12.addConstraint(Sketcher.Constraint("Vertical", 3))
sketch12.addConstraint(Sketcher.Constraint("DistanceX", 0, 2, 0, 1, Q("24 mm")))
sketch12.addConstraint(Sketcher.Constraint("DistanceY", 1, 2, 1, 1, Q("3.5 mm")))
sketch12.addConstraint(Sketcher.Constraint("DistanceY", -1, 1, 0, 2, Q("29.583078 mm")))
sketch12.addConstraint(Sketcher.Constraint("DistanceX", -1, 1, 0, 2, Q("25.536384 mm")))
pocket6 = body.newObject("PartDesign::Pocket", "Pocket005")
pocket6.Profile = sketch12
pocket6.Length = 20

# Sketch on XZ plane
sketch13 = body.newObject("Sketcher::SketchObject", "Sketch012")
sketch13.AttachmentSupport = (doc.getObject("XZ_Plane"), [""])
sketch13.MapMode = "FlatFace"
sketch13.AttachmentOffset = App.Placement(Vector(0, 0, -23.789332), App.Rotation())
sketch13.addGeometry(Part.LineSegment(Vector(38.5, 25.5, 0), Vector(37.9, 25.5, 0)), False)
sketch13.addGeometry(Part.LineSegment(Vector(37.9, 25.5, 0), Vector(37.9, 19.4, 0)), False)
sketch13.addGeometry(Part.LineSegment(Vector(37.9, 19.4, 0), Vector(47, 19.4, 0)), False)
sketch13.addGeometry(Part.LineSegment(Vector(47, 19.4, 0), Vector(47, 20.8, 0)), False)
sketch13.addGeometry(Part.LineSegment(Vector(47, 20.8, 0), Vector(38.5, 25.5, 0)), False)
sketch13.addConstraint(Sketcher.Constraint("Coincident", 0, 2, 1, 1))
sketch13.addConstraint(Sketcher.Constraint("Coincident", 1, 2, 2, 1))
sketch13.addConstraint(Sketcher.Constraint("Coincident", 2, 2, 3, 1))
sketch13.addConstraint(Sketcher.Constraint("Coincident", 3, 2, 4, 1))
sketch13.addConstraint(Sketcher.Constraint("Coincident", 4, 2, 0, 1))
sketch13.addConstraint(Sketcher.Constraint("Horizontal", 0))
sketch13.addConstraint(Sketcher.Constraint("Vertical", 1))
sketch13.addConstraint(Sketcher.Constraint("Horizontal", 2))
sketch13.addConstraint(Sketcher.Constraint("Vertical", 3))
sketch13.addConstraint(Sketcher.Constraint("DistanceX", 0, 2, 0, 1, Q("0.636383 mm")))
sketch13.addConstraint(Sketcher.Constraint("DistanceX", 2, 1, 2, 2, Q("9.132203 mm")))
sketch13.addConstraint(Sketcher.Constraint("DistanceY", 1, 2, 1, 1, Q("6.072153 mm")))
sketch13.addConstraint(Sketcher.Constraint("DistanceY", 3, 1, 3, 2, Q("1.378116 mm")))
sketch13.addConstraint(Sketcher.Constraint("DistanceX", -1, 1, 0, 2, Q("37.906859 mm")))
sketch13.addConstraint(Sketcher.Constraint("DistanceY", -1, 1, 3, 2, Q("20.77836 mm")))
pocket7 = body.newObject("PartDesign::Pocket", "Pocket006")
pocket7.Profile = sketch13
pocket7.Length = 29.99973

# Sketch on YZ plane
sketch14 = body.newObject("Sketcher::SketchObject", "Sketch013")
sketch14.AttachmentSupport = (doc.getObject("YZ_Plane"), [""])
sketch14.MapMode = "FlatFace"
sketch14.AttachmentOffset = App.Placement(Vector(0, 0, 49.039062), App.Rotation())
sketch14.addGeometry(Part.LineSegment(Vector(15, 33, 0), Vector(-6, 33, 0)), False)
sketch14.addGeometry(Part.LineSegment(Vector(-6, 33, 0), Vector(-6, 17, 0)), False)
sketch14.addGeometry(Part.LineSegment(Vector(-6, 17, 0), Vector(15, 17, 0)), False)
sketch14.addGeometry(Part.LineSegment(Vector(15, 17, 0), Vector(15, 33, 0)), False)
sketch14.addConstraint(Sketcher.Constraint("Coincident", 0, 2, 1, 1))
sketch14.addConstraint(Sketcher.Constraint("Coincident", 1, 2, 2, 1))
sketch14.addConstraint(Sketcher.Constraint("Coincident", 2, 2, 3, 1))
sketch14.addConstraint(Sketcher.Constraint("Coincident", 3, 2, 0, 1))
sketch14.addConstraint(Sketcher.Constraint("Horizontal", 0))
sketch14.addConstraint(Sketcher.Constraint("Vertical", 1))
sketch14.addConstraint(Sketcher.Constraint("Horizontal", 2))
sketch14.addConstraint(Sketcher.Constraint("Vertical", 3))
sketch14.addConstraint(Sketcher.Constraint("DistanceX", 0, 2, 0, 1, Q("20.5 mm")))
sketch14.addConstraint(Sketcher.Constraint("DistanceY", 1, 2, 1, 1, Q("15.5 mm")))
sketch14.addConstraint(Sketcher.Constraint("DistanceY", -1, 1, 0, 2, Q("32.591469 mm")))
sketch14.addConstraint(Sketcher.Constraint("DistanceX", 0, 2, -1, 1, Q("5.583237 mm")))
pocket8 = body.newObject("PartDesign::Pocket", "Pocket007")
pocket8.Profile = sketch14
pocket8.Length = 30

# Sketch on XY plane
sketch15 = body.newObject("Sketcher::SketchObject", "Sketch014")
sketch15.AttachmentSupport = (doc.getObject("XY_Plane"), [""])
sketch15.MapMode = "FlatFace"
sketch15.AttachmentOffset = App.Placement(Vector(0, 0, 5), App.Rotation())
sketch15.addGeometry(Part.LineSegment(Vector(-55, 0, 0), Vector(-55, -48, 0)), False)
sketch15.addGeometry(Part.LineSegment(Vector(-55, -48, 0), Vector(47, -48, 0)), False)
sketch15.addGeometry(Part.LineSegment(Vector(47, -48, 0), Vector(47, 0, 0)), False)
sketch15.addGeometry(Part.LineSegment(Vector(47, 0, 0), Vector(-55, 0, 0)), False)
sketch15.addConstraint(Sketcher.Constraint("Coincident", 0, 2, 1, 1))
sketch15.addConstraint(Sketcher.Constraint("Coincident", 1, 2, 2, 1))
sketch15.addConstraint(Sketcher.Constraint("Coincident", 2, 2, 3, 1))
sketch15.addConstraint(Sketcher.Constraint("Coincident", 3, 2, 0, 1))
sketch15.addConstraint(Sketcher.Constraint("Vertical", 0))
sketch15.addConstraint(Sketcher.Constraint("Horizontal", 1))
sketch15.addConstraint(Sketcher.Constraint("Vertical", 2))
sketch15.addConstraint(Sketcher.Constraint("Horizontal", 3))
sketch15.addConstraint(Sketcher.Constraint("DistanceX", 1, 1, 1, 2, Q("102 mm")))
sketch15.addConstraint(Sketcher.Constraint("DistanceY", 0, 2, 0, 1, Q("48 mm")))
sketch15.addConstraint(Sketcher.Constraint("DistanceX", 0, 2, -1, 1, Q("54.960938 mm")))
sketch15.addConstraint(Sketcher.Constraint("DistanceY", 0, 2, -1, 1, Q("48.210938 mm")))
pocket9 = body.newObject("PartDesign::Pocket", "Pocket008")
pocket9.Profile = sketch15
pocket9.Length = 2

# Sketch on YZ plane
sketch16 = body.newObject("Sketcher::SketchObject", "Sketch015")
sketch16.AttachmentSupport = (doc.getObject("YZ_Plane"), [""])
sketch16.MapMode = "FlatFace"
sketch16.AttachmentOffset = App.Placement(Vector(0, 0, -54.960938), App.Rotation())
sketch16.addGeometry(Part.LineSegment(Vector(-9.6, 6, 0), Vector(-9.6, 8, 0)), False)
sketch16.addGeometry(Part.ArcOfCircle(Part.Circle(Vector(-12.6, 8, 0), Vector(0, 0, 1), 3), math.radians(0), math.radians(90)), False)
sketch16.addGeometry(Part.LineSegment(Vector(-12.6, 11, 0), Vector(-36.6, 11, 0)), False)
sketch16.addGeometry(Part.ArcOfCircle(Part.Circle(Vector(-36.6, 8, 0), Vector(0, 0, 1), 3), math.radians(90), math.radians(180)), False)
sketch16.addGeometry(Part.LineSegment(Vector(-39.6, 8, 0), Vector(-39.6, 6, 0)), False)
sketch16.addGeometry(Part.ArcOfCircle(Part.Circle(Vector(-36.6, 6, 0), Vector(0, 0, 1), 3), math.radians(180), math.radians(270)), False)
sketch16.addGeometry(Part.LineSegment(Vector(-36.6, 3, 0), Vector(-12.6, 3, 0)), False)
sketch16.addGeometry(Part.ArcOfCircle(Part.Circle(Vector(-12.6, 6, 0), Vector(0, 0, 1), 3), math.radians(-90), math.radians(0)), False)
sketch16.addConstraint(Sketcher.Constraint("Tangent", 0, 2, 1, 1))
sketch16.addConstraint(Sketcher.Constraint("Tangent", 1, 2, 2, 1))
sketch16.addConstraint(Sketcher.Constraint("Tangent", 2, 2, 3, 1))
sketch16.addConstraint(Sketcher.Constraint("Tangent", 3, 2, 4, 1))
sketch16.addConstraint(Sketcher.Constraint("Tangent", 4, 2, 5, 1))
sketch16.addConstraint(Sketcher.Constraint("Tangent", 5, 2, 6, 1))
sketch16.addConstraint(Sketcher.Constraint("Tangent", 6, 2, 7, 1))
sketch16.addConstraint(Sketcher.Constraint("Tangent", 7, 2, 0, 1))
sketch16.addConstraint(Sketcher.Constraint("Vertical", 0))
sketch16.addConstraint(Sketcher.Constraint("Horizontal", 2))
sketch16.addConstraint(Sketcher.Constraint("Vertical", 4))
sketch16.addConstraint(Sketcher.Constraint("Horizontal", 6))
sketch16.addConstraint(Sketcher.Constraint("Equal", 1, 3))
sketch16.addConstraint(Sketcher.Constraint("Equal", 3, 5))
sketch16.addConstraint(Sketcher.Constraint("Equal", 5, 7))
sketch16.addConstraint(Sketcher.Constraint("Radius", 1, Q("3 mm")))
sketch16.addConstraint(Sketcher.Constraint("DistanceX", 2, 2, 2, 1, Q("24 mm")))
sketch16.addConstraint(Sketcher.Constraint("DistanceY", 0, 1, 0, 2, Q("2 mm")))
sketch16.addConstraint(Sketcher.Constraint("DistanceY", -1, 1, 1, 3, Q("8 mm")))
sketch16.addConstraint(Sketcher.Constraint("DistanceX", 1, 3, -1, 1, Q("12.636069 mm")))
pocket10 = body.newObject("PartDesign::Pocket", "Pocket009")
pocket10.Profile = sketch16
pocket10.Type = "ThroughAll"

# Sketch on YZ plane
sketch17 = body.newObject("Sketcher::SketchObject", "Sketch016")
sketch17.AttachmentSupport = (doc.getObject("YZ_Plane"), [""])
sketch17.MapMode = "FlatFace"
sketch17.AttachmentOffset = App.Placement(Vector(0, 0, -56.960938), App.Rotation())
sketch17.addGeometry(Part.ArcOfCircle(Part.Circle(Vector(-37.8, 9.2, 0), Vector(0, 0, 1), 4), math.radians(90), math.radians(180)), False)
sketch17.addGeometry(Part.LineSegment(Vector(-37.8, 13.2, 0), Vector(-11.1, 13.2, 0)), False)
sketch17.addGeometry(Part.ArcOfCircle(Part.Circle(Vector(-11.1, 9.2, 0), Vector(0, 0, 1), 4), math.radians(0), math.radians(90)), False)
sketch17.addGeometry(Part.LineSegment(Vector(-7.1, 9.2, 0), Vector(-7.1, 0, 0)), False)
sketch17.addGeometry(Part.LineSegment(Vector(-7.1, 0, 0), Vector(-41.8, 0, 0)), False)
sketch17.addGeometry(Part.LineSegment(Vector(-41.8, 0, 0), Vector(-41.8, 9.2, 0)), False)
sketch17.addGeometry(Part.ArcOfCircle(Part.Circle(Vector(-12.6, 6, 0), Vector(0, 0, 1), 3), math.radians(-90), math.radians(0)), False)
sketch17.addGeometry(Part.LineSegment(Vector(-9.6, 6, 0), Vector(-9.6, 8, 0)), False)
sketch17.addGeometry(Part.ArcOfCircle(Part.Circle(Vector(-12.6, 8, 0), Vector(0, 0, 1), 3), math.radians(0), math.radians(90)), False)
sketch17.addGeometry(Part.LineSegment(Vector(-12.6, 11, 0), Vector(-36.6, 11, 0)), False)
sketch17.addGeometry(Part.ArcOfCircle(Part.Circle(Vector(-36.6, 8, 0), Vector(0, 0, 1), 3), math.radians(90), math.radians(180)), False)
sketch17.addGeometry(Part.LineSegment(Vector(-39.6, 8, 0), Vector(-39.6, 6, 0)), False)
sketch17.addGeometry(Part.ArcOfCircle(Part.Circle(Vector(-36.6, 6, 0), Vector(0, 0, 1), 3), math.radians(180), math.radians(270)), False)
sketch17.addGeometry(Part.LineSegment(Vector(-36.6, 3, 0), Vector(-12.6, 3, 0)), False)
sketch17.addConstraint(Sketcher.Constraint("Tangent", 0, 1, 1, 1))
sketch17.addConstraint(Sketcher.Constraint("Tangent", 1, 2, 2, 2))
sketch17.addConstraint(Sketcher.Constraint("Tangent", 2, 1, 3, 1))
sketch17.addConstraint(Sketcher.Constraint("Coincident", 3, 2, 4, 1))
sketch17.addConstraint(Sketcher.Constraint("Coincident", 4, 2, 5, 1))
sketch17.addConstraint(Sketcher.Constraint("Tangent", 5, 2, 0, 2))
sketch17.addConstraint(Sketcher.Constraint("Tangent", 6, 2, 7, 1))
sketch17.addConstraint(Sketcher.Constraint("Tangent", 7, 2, 8, 1))
sketch17.addConstraint(Sketcher.Constraint("Tangent", 8, 2, 9, 1))
sketch17.addConstraint(Sketcher.Constraint("Tangent", 9, 2, 10, 1))
sketch17.addConstraint(Sketcher.Constraint("Tangent", 10, 2, 11, 1))
sketch17.addConstraint(Sketcher.Constraint("Tangent", 11, 2, 12, 1))
sketch17.addConstraint(Sketcher.Constraint("Tangent", 12, 2, 13, 1))
sketch17.addConstraint(Sketcher.Constraint("Tangent", 13, 2, 6, 1))
sketch17.addConstraint(Sketcher.Constraint("Horizontal", 1))
sketch17.addConstraint(Sketcher.Constraint("Vertical", 3))
sketch17.addConstraint(Sketcher.Constraint("Horizontal", 4))
sketch17.addConstraint(Sketcher.Constraint("Vertical", 5))
sketch17.addConstraint(Sketcher.Constraint("Vertical", 7))
sketch17.addConstraint(Sketcher.Constraint("Horizontal", 9))
sketch17.addConstraint(Sketcher.Constraint("Vertical", 11))
sketch17.addConstraint(Sketcher.Constraint("Horizontal", 13))
sketch17.addConstraint(Sketcher.Constraint("Equal", 0, 2))
sketch17.addConstraint(Sketcher.Constraint("Equal", 6, 8))
sketch17.addConstraint(Sketcher.Constraint("Equal", 8, 10))
sketch17.addConstraint(Sketcher.Constraint("Equal", 10, 12))
sketch17.addConstraint(Sketcher.Constraint("PointOnObject", 3, 2, -1))
sketch17.addConstraint(Sketcher.Constraint("Radius", 0, Q("4 mm")))
sketch17.addConstraint(Sketcher.Constraint("Radius", 6, Q("3 mm")))
sketch17.addConstraint(Sketcher.Constraint("DistanceX", 9, 2, 9, 1, Q("24 mm")))
sketch17.addConstraint(Sketcher.Constraint("DistanceY", 7, 1, 7, 2, Q("2 mm")))
sketch17.addConstraint(Sketcher.Constraint("DistanceY", -1, 1, 6, 3, Q("6 mm")))
sketch17.addConstraint(Sketcher.Constraint("DistanceX", 1, 1, 1, 2, Q("26.769039 mm")))
sketch17.addConstraint(Sketcher.Constraint("DistanceY", 3, 2, 3, 1, Q("9.180534 mm")))
sketch17.addConstraint(Sketcher.Constraint("DistanceX", 6, 3, -1, 1, Q("12.636069 mm")))
sketch17.addConstraint(Sketcher.Constraint("DistanceX", 0, 3, -1, 1, Q("37.845424 mm")))
pad7 = body.newObject("PartDesign::Pad", "Pad006")
pad7.Profile = sketch17
pad7.Length = 6
pad7.Reversed = True

# Sketch on XY plane
sketch18 = body.newObject("Sketcher::SketchObject", "Sketch017")
sketch18.AttachmentSupport = (doc.getObject("XY_Plane"), [""])
sketch18.MapMode = "FlatFace"
sketch18.addGeometry(Part.LineSegment(Vector(-57, -2.9, 0), Vector(-64.9, -2.9, 0)), False)
sketch18.addGeometry(Part.ArcOfCircle(Part.Circle(Vector(-64.9, 1.1, 0), Vector(0, 0, 1), 4), math.radians(-180), math.radians(-90)), False)
sketch18.addGeometry(Part.LineSegment(Vector(-68.9, 1.1, 0), Vector(-68.9, 4.5, 0)), False)
sketch18.addGeometry(Part.ArcOfCircle(Part.Circle(Vector(-64.9, 4.5, 0), Vector(0, 0, 1), 4), math.radians(90), math.radians(180)), False)
sketch18.addGeometry(Part.LineSegment(Vector(-64.9, 8.5, 0), Vector(-57, 8.5, 0)), False)
sketch18.addGeometry(Part.LineSegment(Vector(-57, 8.5, 0), Vector(-57, -2.9, 0)), False)
sketch18.addGeometry(Part.Circle(Vector(-62.9, 2.8, 0), Vector(0, 0, 1), 2), False)
sketch18.addGeometry(Part.LineSegment(Vector(61, 4.5, 0), Vector(61, 1.1, 0)), False)
sketch18.addGeometry(Part.ArcOfCircle(Part.Circle(Vector(57, 1.1, 0), Vector(0, 0, 1), 4), math.radians(-90), math.radians(0)), False)
sketch18.addGeometry(Part.LineSegment(Vector(57, -2.9, 0), Vector(49, -2.9, 0)), False)
sketch18.addGeometry(Part.LineSegment(Vector(49, -2.9, 0), Vector(49, 8.5, 0)), False)
sketch18.addGeometry(Part.LineSegment(Vector(49, 8.5, 0), Vector(57, 8.5, 0)), False)
sketch18.addGeometry(Part.ArcOfCircle(Part.Circle(Vector(57, 4.5, 0), Vector(0, 0, 1), 4), math.radians(0), math.radians(90)), False)
sketch18.addGeometry(Part.Circle(Vector(55, 2.8, 0), Vector(0, 0, 1), 2), False)
sketch18.addConstraint(Sketcher.Constraint("Tangent", 0, 2, 1, 2))
sketch18.addConstraint(Sketcher.Constraint("Tangent", 1, 1, 2, 1))
sketch18.addConstraint(Sketcher.Constraint("Tangent", 2, 2, 3, 2))
sketch18.addConstraint(Sketcher.Constraint("Tangent", 3, 1, 4, 1))
sketch18.addConstraint(Sketcher.Constraint("Coincident", 4, 2, 5, 1))
sketch18.addConstraint(Sketcher.Constraint("Coincident", 5, 2, 0, 1))
sketch18.addConstraint(Sketcher.Constraint("Tangent", 7, 2, 8, 2))
sketch18.addConstraint(Sketcher.Constraint("Tangent", 8, 1, 9, 1))
sketch18.addConstraint(Sketcher.Constraint("Coincident", 9, 2, 10, 1))
sketch18.addConstraint(Sketcher.Constraint("Coincident", 10, 2, 11, 1))
sketch18.addConstraint(Sketcher.Constraint("Tangent", 11, 2, 12, 2))
sketch18.addConstraint(Sketcher.Constraint("Tangent", 12, 1, 7, 1))
sketch18.addConstraint(Sketcher.Constraint("Horizontal", 0))
sketch18.addConstraint(Sketcher.Constraint("Vertical", 2))
sketch18.addConstraint(Sketcher.Constraint("Horizontal", 4))
sketch18.addConstraint(Sketcher.Constraint("Vertical", 5))
sketch18.addConstraint(Sketcher.Constraint("Vertical", 7))
sketch18.addConstraint(Sketcher.Constraint("Horizontal", 9))
sketch18.addConstraint(Sketcher.Constraint("Vertical", 10))
sketch18.addConstraint(Sketcher.Constraint("Horizontal", 11))
sketch18.addConstraint(Sketcher.Constraint("Equal", 1, 3))
sketch18.addConstraint(Sketcher.Constraint("Equal", 3, 8))
sketch18.addConstraint(Sketcher.Constraint("Equal", 8, 12))
sketch18.addConstraint(Sketcher.Constraint("Equal", 6, 13))
sketch18.addConstraint(Sketcher.Constraint("Horizontal", 1, 3, 8, 3))
sketch18.addConstraint(Sketcher.Constraint("Horizontal", 3, 3, 12, 3))
sketch18.addConstraint(Sketcher.Constraint("Horizontal", 6, 3, 13, 3))
sketch18.addConstraint(Sketcher.Constraint("Equal", 4, 9))
sketch18.addConstraint(Sketcher.Constraint("Diameter", 6, Q("4 mm")))
sketch18.addConstraint(Sketcher.Constraint("Radius", 1, Q("4 mm")))
sketch18.addConstraint(Sketcher.Constraint("DistanceY", -1, 1, 1, 3, Q("1.083101 mm")))
sketch18.addConstraint(Sketcher.Constraint("DistanceX", 0, 2, 0, 1, Q("7.912352 mm")))
sketch18.addConstraint(Sketcher.Constraint("DistanceY", 2, 1, 2, 2, Q("3.411924 mm")))
sketch18.addConstraint(Sketcher.Constraint("DistanceX", 1, 3, -1, 1, Q("64.87329 mm")))
sketch18.addConstraint(Sketcher.Constraint("DistanceX", -1, 1, 13, 3, Q("54.978819 mm")))
sketch18.addConstraint(Sketcher.Constraint("DistanceY", 1, 3, 6, 3, Q("1.705962 mm")))
sketch18.addConstraint(Sketcher.Constraint("DistanceX", 6, 3, 8, 3, Q("119.852109 mm")))
sketch18.addConstraint(Sketcher.Constraint("DistanceX", 6, 3, -1, 1, Q("62.900694 mm")))
pad8 = body.newObject("PartDesign::Pad", "Pad007")
pad8.Profile = sketch18
pad8.Length = 3

doc.recompute()
